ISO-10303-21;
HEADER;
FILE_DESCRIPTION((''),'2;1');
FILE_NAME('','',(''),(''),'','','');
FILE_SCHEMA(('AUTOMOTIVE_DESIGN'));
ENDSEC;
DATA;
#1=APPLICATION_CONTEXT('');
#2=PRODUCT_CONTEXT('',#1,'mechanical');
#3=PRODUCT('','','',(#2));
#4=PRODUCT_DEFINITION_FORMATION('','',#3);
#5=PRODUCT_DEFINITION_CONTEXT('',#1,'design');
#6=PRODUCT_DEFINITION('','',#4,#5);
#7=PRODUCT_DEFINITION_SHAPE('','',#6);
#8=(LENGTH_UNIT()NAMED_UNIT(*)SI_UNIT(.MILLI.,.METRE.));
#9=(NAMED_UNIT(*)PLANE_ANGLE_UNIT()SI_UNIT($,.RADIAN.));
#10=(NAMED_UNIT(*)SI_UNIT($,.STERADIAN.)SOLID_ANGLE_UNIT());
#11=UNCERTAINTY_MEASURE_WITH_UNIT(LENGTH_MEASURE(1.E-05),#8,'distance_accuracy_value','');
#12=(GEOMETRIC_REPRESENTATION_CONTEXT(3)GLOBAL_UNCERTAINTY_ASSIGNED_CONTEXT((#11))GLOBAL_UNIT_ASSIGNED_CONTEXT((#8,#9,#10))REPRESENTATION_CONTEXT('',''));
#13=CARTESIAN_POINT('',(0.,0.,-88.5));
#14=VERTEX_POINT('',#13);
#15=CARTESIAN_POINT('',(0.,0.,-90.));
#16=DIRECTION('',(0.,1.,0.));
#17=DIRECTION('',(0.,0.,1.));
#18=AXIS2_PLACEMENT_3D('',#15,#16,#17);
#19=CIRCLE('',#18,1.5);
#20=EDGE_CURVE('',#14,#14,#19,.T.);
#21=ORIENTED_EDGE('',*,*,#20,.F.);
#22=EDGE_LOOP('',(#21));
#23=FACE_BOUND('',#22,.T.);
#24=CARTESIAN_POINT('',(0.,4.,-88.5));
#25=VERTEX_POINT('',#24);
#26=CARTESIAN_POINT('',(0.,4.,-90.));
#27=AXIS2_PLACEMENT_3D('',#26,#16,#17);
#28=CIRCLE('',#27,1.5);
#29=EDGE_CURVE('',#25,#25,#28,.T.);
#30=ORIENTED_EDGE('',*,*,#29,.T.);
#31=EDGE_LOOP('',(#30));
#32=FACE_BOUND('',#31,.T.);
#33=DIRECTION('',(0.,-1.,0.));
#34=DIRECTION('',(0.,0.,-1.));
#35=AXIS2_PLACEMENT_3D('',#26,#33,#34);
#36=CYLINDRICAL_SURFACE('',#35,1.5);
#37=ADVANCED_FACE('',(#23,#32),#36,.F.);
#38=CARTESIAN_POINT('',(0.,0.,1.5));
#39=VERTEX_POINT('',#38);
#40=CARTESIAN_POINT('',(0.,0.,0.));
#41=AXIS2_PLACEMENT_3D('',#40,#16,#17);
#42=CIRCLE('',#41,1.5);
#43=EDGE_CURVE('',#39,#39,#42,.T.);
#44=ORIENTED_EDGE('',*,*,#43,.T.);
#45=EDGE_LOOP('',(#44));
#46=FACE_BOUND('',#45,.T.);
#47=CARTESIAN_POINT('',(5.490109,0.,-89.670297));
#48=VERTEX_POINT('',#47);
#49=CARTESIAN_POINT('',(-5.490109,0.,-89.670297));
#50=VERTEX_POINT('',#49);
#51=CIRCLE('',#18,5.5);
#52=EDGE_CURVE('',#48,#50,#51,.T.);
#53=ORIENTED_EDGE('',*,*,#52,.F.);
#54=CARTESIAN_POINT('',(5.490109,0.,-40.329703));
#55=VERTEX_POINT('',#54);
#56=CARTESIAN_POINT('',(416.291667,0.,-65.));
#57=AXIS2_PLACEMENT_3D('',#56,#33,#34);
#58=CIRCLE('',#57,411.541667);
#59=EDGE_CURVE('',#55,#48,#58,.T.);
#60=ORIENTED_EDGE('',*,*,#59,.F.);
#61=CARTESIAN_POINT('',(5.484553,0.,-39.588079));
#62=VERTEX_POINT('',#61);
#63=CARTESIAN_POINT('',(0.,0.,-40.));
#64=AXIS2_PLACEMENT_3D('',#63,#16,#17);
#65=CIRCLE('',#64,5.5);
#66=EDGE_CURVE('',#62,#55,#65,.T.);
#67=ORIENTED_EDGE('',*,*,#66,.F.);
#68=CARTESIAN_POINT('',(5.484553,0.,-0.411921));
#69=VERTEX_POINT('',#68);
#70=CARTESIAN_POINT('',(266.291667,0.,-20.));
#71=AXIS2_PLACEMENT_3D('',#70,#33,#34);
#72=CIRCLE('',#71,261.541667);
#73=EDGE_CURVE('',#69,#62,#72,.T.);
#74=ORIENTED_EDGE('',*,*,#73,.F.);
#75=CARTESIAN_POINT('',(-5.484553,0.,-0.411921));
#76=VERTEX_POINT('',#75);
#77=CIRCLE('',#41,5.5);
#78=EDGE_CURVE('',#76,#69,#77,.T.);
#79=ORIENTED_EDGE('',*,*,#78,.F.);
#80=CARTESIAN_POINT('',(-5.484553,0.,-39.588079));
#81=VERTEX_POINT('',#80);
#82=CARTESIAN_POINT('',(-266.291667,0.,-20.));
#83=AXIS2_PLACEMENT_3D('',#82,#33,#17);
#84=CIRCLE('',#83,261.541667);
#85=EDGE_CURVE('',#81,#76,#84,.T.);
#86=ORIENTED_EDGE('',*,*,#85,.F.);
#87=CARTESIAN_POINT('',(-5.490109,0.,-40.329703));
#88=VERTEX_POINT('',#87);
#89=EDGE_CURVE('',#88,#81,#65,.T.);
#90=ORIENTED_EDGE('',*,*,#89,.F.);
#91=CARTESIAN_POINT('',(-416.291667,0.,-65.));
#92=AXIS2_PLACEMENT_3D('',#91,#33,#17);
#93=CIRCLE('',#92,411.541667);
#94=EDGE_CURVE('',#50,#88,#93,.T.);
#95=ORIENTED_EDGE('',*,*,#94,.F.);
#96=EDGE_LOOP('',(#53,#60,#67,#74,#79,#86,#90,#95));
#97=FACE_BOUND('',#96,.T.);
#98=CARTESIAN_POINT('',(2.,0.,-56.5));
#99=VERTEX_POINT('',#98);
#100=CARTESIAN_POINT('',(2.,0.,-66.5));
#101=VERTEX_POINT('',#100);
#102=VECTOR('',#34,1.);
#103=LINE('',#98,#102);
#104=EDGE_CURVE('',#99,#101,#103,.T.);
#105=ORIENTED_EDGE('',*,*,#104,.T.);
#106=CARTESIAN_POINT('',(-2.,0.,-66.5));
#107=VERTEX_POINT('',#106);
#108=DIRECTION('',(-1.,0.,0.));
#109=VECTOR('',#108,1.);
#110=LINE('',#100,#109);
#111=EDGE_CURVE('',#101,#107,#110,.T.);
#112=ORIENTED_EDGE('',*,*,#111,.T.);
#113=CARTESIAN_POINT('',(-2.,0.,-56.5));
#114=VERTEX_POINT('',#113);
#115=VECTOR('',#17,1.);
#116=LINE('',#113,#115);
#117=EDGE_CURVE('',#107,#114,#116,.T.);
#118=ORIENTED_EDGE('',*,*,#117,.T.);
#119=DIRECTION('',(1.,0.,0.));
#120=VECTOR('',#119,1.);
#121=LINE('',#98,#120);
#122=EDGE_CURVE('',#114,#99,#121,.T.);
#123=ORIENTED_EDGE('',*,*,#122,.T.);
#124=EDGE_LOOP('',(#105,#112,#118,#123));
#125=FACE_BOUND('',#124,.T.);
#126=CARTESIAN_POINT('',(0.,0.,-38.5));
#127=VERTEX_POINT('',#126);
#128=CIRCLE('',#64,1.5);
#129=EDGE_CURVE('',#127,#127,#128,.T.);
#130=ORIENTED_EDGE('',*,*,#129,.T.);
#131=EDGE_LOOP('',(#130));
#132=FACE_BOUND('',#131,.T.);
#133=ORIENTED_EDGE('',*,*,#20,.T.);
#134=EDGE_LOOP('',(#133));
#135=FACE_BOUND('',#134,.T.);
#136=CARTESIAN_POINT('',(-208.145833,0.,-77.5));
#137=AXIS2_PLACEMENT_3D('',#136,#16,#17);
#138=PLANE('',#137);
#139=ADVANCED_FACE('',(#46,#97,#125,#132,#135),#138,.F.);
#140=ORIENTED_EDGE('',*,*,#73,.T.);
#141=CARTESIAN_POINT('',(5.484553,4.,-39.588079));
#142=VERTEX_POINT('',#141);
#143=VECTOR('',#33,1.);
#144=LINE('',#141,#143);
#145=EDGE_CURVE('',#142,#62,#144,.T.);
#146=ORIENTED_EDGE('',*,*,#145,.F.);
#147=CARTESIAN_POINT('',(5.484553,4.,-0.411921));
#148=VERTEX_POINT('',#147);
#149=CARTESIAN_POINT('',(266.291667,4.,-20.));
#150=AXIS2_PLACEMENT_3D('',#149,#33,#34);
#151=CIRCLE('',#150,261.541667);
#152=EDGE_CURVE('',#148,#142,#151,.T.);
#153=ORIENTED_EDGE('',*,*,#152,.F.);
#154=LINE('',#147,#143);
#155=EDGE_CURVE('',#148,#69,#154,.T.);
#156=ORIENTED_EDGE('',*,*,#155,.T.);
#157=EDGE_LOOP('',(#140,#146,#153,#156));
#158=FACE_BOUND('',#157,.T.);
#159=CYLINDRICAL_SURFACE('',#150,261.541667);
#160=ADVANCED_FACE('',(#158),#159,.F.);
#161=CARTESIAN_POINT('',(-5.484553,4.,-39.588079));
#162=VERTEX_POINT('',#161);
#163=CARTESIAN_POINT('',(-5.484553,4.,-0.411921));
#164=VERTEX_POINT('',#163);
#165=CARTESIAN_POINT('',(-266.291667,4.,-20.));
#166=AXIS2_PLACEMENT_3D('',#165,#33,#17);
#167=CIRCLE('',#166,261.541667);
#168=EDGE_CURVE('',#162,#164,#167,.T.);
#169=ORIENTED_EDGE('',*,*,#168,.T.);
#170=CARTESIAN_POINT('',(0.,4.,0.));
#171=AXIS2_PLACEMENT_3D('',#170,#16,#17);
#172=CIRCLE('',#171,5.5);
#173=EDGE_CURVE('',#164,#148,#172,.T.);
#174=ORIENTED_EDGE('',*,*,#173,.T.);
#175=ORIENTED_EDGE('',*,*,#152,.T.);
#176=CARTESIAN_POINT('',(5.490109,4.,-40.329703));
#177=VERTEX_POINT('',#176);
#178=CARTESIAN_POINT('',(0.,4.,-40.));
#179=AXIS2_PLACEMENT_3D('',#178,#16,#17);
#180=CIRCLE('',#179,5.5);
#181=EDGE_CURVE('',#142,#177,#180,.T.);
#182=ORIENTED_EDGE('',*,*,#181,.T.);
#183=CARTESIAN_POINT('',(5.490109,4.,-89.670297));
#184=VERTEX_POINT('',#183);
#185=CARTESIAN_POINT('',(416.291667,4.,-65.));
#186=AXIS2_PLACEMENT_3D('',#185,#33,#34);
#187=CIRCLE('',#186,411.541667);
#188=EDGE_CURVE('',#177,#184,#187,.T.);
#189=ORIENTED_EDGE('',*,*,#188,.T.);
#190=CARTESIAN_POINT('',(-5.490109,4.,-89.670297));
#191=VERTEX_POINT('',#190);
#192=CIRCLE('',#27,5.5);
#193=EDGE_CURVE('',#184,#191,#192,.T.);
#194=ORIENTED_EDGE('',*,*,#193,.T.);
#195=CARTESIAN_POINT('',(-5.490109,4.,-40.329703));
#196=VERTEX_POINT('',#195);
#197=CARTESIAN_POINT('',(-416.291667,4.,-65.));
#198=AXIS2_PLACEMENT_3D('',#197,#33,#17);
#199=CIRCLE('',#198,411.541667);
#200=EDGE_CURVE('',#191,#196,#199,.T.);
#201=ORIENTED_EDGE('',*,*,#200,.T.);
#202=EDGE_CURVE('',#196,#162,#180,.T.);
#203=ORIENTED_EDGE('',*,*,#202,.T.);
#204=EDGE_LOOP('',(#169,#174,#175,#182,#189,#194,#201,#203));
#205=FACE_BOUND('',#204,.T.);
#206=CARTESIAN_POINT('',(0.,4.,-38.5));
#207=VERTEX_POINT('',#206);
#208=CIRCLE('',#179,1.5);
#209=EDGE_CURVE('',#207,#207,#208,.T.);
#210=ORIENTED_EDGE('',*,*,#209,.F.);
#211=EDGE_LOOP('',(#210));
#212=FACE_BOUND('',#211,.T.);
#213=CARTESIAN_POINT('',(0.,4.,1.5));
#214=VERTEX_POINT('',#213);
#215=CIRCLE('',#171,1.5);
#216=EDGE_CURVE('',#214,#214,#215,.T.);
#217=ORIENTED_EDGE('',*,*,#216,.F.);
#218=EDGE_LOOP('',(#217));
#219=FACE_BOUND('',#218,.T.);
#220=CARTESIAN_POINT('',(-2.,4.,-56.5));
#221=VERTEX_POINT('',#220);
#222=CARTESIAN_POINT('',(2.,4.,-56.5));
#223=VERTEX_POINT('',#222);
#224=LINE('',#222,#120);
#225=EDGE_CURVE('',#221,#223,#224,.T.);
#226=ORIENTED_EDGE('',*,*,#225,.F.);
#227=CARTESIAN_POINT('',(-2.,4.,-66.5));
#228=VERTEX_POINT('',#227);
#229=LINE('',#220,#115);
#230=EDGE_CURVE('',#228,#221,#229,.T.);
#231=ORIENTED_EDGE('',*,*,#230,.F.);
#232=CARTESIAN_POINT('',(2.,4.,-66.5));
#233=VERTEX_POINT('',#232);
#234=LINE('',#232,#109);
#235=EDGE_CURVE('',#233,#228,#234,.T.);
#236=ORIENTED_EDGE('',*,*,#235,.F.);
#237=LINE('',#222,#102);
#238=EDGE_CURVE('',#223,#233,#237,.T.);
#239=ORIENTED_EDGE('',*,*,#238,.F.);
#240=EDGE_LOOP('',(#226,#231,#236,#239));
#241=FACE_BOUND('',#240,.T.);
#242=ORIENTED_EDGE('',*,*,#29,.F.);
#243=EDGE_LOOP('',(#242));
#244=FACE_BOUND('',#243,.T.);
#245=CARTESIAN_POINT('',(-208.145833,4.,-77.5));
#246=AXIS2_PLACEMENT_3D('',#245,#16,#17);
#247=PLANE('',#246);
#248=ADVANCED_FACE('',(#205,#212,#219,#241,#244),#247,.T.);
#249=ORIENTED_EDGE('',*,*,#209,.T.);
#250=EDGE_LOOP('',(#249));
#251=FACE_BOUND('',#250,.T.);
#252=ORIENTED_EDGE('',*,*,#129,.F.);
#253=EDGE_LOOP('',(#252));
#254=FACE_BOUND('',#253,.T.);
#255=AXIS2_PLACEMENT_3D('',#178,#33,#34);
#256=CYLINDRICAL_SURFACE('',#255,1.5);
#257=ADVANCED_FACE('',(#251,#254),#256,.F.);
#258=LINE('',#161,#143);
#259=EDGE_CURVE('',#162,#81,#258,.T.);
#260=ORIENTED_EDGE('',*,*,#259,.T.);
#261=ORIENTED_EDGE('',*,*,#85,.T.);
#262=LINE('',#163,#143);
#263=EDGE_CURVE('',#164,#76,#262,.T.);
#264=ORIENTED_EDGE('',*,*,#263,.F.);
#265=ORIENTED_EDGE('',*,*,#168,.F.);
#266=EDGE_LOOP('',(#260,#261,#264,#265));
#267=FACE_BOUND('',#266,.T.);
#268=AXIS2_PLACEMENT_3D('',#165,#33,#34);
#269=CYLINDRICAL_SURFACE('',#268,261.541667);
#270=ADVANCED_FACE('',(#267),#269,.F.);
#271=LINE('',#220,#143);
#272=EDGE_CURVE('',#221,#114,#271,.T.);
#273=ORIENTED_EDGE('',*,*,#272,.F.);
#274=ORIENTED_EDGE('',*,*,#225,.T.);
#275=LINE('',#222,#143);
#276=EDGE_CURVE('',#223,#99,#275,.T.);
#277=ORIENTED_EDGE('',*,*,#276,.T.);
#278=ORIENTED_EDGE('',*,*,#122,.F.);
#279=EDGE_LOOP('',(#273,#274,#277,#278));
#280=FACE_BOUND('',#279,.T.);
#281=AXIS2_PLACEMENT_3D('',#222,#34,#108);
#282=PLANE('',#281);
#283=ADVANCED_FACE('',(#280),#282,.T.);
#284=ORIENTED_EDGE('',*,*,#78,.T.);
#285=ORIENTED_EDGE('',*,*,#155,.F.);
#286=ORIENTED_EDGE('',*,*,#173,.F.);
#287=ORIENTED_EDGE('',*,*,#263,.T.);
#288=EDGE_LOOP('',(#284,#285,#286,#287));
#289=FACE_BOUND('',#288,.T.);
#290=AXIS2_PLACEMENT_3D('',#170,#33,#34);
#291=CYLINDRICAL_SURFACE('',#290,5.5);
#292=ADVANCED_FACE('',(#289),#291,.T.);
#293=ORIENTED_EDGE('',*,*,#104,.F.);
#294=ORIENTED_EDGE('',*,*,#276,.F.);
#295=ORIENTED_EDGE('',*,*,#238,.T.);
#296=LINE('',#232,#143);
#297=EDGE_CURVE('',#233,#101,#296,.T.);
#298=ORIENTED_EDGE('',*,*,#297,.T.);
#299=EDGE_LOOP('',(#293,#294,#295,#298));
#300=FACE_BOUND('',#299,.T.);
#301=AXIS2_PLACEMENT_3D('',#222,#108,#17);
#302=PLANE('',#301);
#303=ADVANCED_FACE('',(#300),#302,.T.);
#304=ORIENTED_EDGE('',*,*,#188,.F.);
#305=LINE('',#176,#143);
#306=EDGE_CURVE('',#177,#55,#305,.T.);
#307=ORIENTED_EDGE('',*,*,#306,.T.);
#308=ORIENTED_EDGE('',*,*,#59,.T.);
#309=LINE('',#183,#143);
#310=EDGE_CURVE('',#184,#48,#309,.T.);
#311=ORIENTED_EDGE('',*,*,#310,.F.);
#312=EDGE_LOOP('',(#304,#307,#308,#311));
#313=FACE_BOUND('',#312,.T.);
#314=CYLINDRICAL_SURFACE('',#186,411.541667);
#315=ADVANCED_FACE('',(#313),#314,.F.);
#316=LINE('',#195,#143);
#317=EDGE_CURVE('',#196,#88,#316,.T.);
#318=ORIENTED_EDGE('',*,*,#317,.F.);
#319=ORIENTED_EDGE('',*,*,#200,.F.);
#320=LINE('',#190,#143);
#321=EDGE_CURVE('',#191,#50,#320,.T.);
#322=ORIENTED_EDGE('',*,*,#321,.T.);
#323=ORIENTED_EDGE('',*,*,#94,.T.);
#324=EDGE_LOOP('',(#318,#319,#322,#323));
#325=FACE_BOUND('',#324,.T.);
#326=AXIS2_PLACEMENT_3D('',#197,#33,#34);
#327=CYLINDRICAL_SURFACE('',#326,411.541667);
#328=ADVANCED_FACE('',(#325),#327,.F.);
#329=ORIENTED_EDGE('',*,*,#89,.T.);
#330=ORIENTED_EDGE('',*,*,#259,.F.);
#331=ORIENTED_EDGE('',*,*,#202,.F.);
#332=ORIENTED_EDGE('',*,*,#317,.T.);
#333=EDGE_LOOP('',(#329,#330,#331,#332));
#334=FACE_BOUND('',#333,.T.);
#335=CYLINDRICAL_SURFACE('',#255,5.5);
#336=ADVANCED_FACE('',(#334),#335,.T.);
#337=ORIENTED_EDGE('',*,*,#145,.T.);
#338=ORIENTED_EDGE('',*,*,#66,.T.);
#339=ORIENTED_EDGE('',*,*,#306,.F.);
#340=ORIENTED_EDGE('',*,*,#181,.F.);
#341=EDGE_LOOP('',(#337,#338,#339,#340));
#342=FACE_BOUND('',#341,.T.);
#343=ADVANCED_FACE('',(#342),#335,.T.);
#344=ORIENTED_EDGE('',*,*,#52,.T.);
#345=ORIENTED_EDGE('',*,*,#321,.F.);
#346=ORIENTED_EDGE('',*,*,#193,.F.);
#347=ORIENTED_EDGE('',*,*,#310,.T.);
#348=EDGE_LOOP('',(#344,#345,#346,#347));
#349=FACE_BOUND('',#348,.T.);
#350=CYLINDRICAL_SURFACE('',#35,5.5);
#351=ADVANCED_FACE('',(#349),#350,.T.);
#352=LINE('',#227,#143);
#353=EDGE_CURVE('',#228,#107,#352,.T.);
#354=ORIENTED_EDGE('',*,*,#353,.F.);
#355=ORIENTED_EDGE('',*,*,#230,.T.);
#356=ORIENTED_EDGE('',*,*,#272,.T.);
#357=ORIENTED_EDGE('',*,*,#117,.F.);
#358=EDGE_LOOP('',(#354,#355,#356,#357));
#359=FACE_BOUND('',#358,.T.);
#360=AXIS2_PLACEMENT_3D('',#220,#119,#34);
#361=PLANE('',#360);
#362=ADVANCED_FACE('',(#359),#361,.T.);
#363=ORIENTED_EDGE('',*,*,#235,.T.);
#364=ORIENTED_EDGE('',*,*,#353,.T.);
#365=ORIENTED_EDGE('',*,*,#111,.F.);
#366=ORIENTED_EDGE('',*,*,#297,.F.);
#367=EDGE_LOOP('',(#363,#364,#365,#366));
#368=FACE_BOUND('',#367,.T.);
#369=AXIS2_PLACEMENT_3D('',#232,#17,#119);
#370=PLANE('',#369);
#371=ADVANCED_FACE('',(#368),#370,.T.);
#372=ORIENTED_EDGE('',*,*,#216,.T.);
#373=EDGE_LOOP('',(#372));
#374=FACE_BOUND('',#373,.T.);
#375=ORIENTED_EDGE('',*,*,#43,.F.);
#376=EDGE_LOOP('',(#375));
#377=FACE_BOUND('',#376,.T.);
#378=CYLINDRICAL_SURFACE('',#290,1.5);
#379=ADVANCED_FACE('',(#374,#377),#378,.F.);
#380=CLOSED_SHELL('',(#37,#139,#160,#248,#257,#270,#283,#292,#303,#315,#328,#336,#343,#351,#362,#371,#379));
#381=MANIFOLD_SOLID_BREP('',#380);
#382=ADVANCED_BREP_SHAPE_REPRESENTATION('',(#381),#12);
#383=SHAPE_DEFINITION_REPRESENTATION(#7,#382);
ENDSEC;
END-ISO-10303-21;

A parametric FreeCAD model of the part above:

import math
import FreeCAD as App
import Part
import Sketcher


def add_polygon(sketch, points):
    """Adds a closed chain of lines whose ends are joined by coincident constraints."""
    first, n = sketch.GeometryCount, len(points)
    for a, b in zip(points, points[1:] + points[:1]):
        sketch.addGeometry(Part.LineSegment(App.Vector(*a, 0), App.Vector(*b, 0)), False)
    for i in range(n):
        sketch.addConstraint(Sketcher.Constraint("Coincident", first + i, 2, first + (i + 1) % n, 1))

doc = App.newDocument("Part")
params = doc.addObject("Spreadsheet::Sheet", "Params")
for row, (alias, value) in enumerate([
    ("sketch1_diameter", "3 mm"),
    ("sketch1_radius", "5.5 mm"),
    ("sketch1_width", "4 mm"),
    ("sketch1_height", "10 mm"),
    ("pad1_length", "4 mm"),
], start=1):
    params.set(f"A{row}", alias)
    params.set(f"B{row}", "=" + value)
    params.setAlias(f"B{row}", alias)

body = doc.addObject("PartDesign::Body", "Body")

sketch1 = body.newObject("Sketcher::SketchObject", "Sketch")
sketch1.AttachmentSupport = (doc.getObject("XZ_Plane"), [""])
sketch1.MapMode = "FlatFace"
sketch1.addGeometry(Part.ArcOfCircle(Part.Circle(App.Vector(0, 0, 0), App.Vector(0, 0, 1), 5.5), math.radians(-4), math.radians(184)), False)
sketch1.addGeometry(Part.ArcOfCircle(Part.Circle(App.Vector(266.3, -20, 0), App.Vector(0, 0, 1), 261.5), math.radians(175.7), math.radians(184.3)), False)
sketch1.addGeometry(Part.ArcOfCircle(Part.Circle(App.Vector(0, -40, 0), App.Vector(0, 0, 1), 5.5), math.radians(-3.44), math.radians(4.3)), False)
sketch1.addGeometry(Part.ArcOfCircle(Part.Circle(App.Vector(416.3, -65, 0), App.Vector(0, 0, 1), 411.5), math.radians(176.56), math.radians(183.44)), False)
sketch1.addGeometry(Part.ArcOfCircle(Part.Circle(App.Vector(0, -90, 0), App.Vector(0, 0, 1), 5.5), math.radians(177), math.radians(363)), False)
sketch1.addGeometry(Part.ArcOfCircle(Part.Circle(App.Vector(-416.3, -65, 0), App.Vector(0, 0, 1), 411.5), math.radians(-3.44), math.radians(3.44)), False)
sketch1.addGeometry(Part.ArcOfCircle(Part.Circle(App.Vector(0, -40, 0), App.Vector(0, 0, 1), 5.5), math.radians(175.7), math.radians(183.44)), False)
sketch1.addGeometry(Part.ArcOfCircle(Part.Circle(App.Vector(-266.3, -20, 0), App.Vector(0, 0, 1), 261.5), math.radians(-4.3), math.radians(4.3)), False)
sketch1.addGeometry(Part.Circle(App.Vector(0, 0, 0), App.Vector(0, 0, 1), 1.5), False)
sketch1.addGeometry(Part.Circle(App.Vector(0, -40, 0), App.Vector(0, 0, 1), 1.5), False)
sketch1.addGeometry(Part.Circle(App.Vector(0, -90, 0), App.Vector(0, 0, 1), 1.5), False)
add_polygon(sketch1, [(2, -56.5), (-2, -56.5), (-2, -66.5), (2, -66.5)])
sketch1.addConstraint([
    Sketcher.Constraint("Tangent", 0, 1, 1, 1),
    Sketcher.Constraint("Tangent", 1, 2, 2, 2),
    Sketcher.Constraint("Tangent", 2, 1, 3, 1),
    Sketcher.Constraint("Tangent", 3, 2, 4, 2),
    Sketcher.Constraint("Tangent", 4, 1, 5, 1),
    Sketcher.Constraint("Tangent", 5, 2, 6, 2),
    Sketcher.Constraint("Tangent", 6, 1, 7, 1),
    Sketcher.Constraint("Tangent", 7, 2, 0, 2),
    Sketcher.Constraint("Horizontal", 11),
    Sketcher.Constraint("Vertical", 12),
    Sketcher.Constraint("Horizontal", 13),
    Sketcher.Constraint("Vertical", 14),
    Sketcher.Constraint("Coincident", 0, 3, -1, 1),
    Sketcher.Constraint("Coincident", 8, 3, -1, 1),
    Sketcher.Constraint("Coincident", 6, 3, 2, 3),
    Sketcher.Constraint("Coincident", 9, 3, 2, 3),
    Sketcher.Constraint("Coincident", 10, 3, 4, 3),
    Sketcher.Constraint("Equal", 0, 2),
    Sketcher.Constraint("Equal", 2, 4),
    Sketcher.Constraint("Equal", 3, 5),
    Sketcher.Constraint("Equal", 4, 6),
    Sketcher.Constraint("Equal", 1, 7),
    Sketcher.Constraint("Equal", 8, 9),
    Sketcher.Constraint("Equal", 9, 10),
    Sketcher.Constraint("Symmetric", 3, 3, 5, 3, -2),
    Sketcher.Constraint("Diameter", 8, 3.0),
    Sketcher.Constraint("Radius", 0, 5.5),
    Sketcher.Constraint("DistanceX", 11, 2, 11, 1, 4.0),
    Sketcher.Constraint("DistanceY", 12, 2, 12, 1, 10.0),
    Sketcher.Constraint("DistanceY", 1, 3, -1, 1, 20.0),
    Sketcher.Constraint("DistanceY", 3, 3, -1, 1, 65.0),
    Sketcher.Constraint("DistanceX", 11, 2, -1, 1, 2.0),
    Sketcher.Constraint("DistanceX", 1, 3, 3, 3, 150.0),
    Sketcher.Constraint("DistanceY", 11, 2, -1, 1, 56.5),
    Sketcher.Constraint("Radius", 1, 261.541667),
])
sketch1.setExpression("Constraints[29]", "Params.sketch1_diameter")
sketch1.setExpression("Constraints[30]", "Params.sketch1_radius")
sketch1.setExpression("Constraints[31]", "Params.sketch1_width")
sketch1.setExpression("Constraints[32]", "Params.sketch1_height")
pad1 = body.newObject("PartDesign::Pad", "Pad")
pad1.Profile = sketch1
pad1.setExpression("Length", "Params.pad1_length")
pad1.Reversed = True

doc.recompute()
